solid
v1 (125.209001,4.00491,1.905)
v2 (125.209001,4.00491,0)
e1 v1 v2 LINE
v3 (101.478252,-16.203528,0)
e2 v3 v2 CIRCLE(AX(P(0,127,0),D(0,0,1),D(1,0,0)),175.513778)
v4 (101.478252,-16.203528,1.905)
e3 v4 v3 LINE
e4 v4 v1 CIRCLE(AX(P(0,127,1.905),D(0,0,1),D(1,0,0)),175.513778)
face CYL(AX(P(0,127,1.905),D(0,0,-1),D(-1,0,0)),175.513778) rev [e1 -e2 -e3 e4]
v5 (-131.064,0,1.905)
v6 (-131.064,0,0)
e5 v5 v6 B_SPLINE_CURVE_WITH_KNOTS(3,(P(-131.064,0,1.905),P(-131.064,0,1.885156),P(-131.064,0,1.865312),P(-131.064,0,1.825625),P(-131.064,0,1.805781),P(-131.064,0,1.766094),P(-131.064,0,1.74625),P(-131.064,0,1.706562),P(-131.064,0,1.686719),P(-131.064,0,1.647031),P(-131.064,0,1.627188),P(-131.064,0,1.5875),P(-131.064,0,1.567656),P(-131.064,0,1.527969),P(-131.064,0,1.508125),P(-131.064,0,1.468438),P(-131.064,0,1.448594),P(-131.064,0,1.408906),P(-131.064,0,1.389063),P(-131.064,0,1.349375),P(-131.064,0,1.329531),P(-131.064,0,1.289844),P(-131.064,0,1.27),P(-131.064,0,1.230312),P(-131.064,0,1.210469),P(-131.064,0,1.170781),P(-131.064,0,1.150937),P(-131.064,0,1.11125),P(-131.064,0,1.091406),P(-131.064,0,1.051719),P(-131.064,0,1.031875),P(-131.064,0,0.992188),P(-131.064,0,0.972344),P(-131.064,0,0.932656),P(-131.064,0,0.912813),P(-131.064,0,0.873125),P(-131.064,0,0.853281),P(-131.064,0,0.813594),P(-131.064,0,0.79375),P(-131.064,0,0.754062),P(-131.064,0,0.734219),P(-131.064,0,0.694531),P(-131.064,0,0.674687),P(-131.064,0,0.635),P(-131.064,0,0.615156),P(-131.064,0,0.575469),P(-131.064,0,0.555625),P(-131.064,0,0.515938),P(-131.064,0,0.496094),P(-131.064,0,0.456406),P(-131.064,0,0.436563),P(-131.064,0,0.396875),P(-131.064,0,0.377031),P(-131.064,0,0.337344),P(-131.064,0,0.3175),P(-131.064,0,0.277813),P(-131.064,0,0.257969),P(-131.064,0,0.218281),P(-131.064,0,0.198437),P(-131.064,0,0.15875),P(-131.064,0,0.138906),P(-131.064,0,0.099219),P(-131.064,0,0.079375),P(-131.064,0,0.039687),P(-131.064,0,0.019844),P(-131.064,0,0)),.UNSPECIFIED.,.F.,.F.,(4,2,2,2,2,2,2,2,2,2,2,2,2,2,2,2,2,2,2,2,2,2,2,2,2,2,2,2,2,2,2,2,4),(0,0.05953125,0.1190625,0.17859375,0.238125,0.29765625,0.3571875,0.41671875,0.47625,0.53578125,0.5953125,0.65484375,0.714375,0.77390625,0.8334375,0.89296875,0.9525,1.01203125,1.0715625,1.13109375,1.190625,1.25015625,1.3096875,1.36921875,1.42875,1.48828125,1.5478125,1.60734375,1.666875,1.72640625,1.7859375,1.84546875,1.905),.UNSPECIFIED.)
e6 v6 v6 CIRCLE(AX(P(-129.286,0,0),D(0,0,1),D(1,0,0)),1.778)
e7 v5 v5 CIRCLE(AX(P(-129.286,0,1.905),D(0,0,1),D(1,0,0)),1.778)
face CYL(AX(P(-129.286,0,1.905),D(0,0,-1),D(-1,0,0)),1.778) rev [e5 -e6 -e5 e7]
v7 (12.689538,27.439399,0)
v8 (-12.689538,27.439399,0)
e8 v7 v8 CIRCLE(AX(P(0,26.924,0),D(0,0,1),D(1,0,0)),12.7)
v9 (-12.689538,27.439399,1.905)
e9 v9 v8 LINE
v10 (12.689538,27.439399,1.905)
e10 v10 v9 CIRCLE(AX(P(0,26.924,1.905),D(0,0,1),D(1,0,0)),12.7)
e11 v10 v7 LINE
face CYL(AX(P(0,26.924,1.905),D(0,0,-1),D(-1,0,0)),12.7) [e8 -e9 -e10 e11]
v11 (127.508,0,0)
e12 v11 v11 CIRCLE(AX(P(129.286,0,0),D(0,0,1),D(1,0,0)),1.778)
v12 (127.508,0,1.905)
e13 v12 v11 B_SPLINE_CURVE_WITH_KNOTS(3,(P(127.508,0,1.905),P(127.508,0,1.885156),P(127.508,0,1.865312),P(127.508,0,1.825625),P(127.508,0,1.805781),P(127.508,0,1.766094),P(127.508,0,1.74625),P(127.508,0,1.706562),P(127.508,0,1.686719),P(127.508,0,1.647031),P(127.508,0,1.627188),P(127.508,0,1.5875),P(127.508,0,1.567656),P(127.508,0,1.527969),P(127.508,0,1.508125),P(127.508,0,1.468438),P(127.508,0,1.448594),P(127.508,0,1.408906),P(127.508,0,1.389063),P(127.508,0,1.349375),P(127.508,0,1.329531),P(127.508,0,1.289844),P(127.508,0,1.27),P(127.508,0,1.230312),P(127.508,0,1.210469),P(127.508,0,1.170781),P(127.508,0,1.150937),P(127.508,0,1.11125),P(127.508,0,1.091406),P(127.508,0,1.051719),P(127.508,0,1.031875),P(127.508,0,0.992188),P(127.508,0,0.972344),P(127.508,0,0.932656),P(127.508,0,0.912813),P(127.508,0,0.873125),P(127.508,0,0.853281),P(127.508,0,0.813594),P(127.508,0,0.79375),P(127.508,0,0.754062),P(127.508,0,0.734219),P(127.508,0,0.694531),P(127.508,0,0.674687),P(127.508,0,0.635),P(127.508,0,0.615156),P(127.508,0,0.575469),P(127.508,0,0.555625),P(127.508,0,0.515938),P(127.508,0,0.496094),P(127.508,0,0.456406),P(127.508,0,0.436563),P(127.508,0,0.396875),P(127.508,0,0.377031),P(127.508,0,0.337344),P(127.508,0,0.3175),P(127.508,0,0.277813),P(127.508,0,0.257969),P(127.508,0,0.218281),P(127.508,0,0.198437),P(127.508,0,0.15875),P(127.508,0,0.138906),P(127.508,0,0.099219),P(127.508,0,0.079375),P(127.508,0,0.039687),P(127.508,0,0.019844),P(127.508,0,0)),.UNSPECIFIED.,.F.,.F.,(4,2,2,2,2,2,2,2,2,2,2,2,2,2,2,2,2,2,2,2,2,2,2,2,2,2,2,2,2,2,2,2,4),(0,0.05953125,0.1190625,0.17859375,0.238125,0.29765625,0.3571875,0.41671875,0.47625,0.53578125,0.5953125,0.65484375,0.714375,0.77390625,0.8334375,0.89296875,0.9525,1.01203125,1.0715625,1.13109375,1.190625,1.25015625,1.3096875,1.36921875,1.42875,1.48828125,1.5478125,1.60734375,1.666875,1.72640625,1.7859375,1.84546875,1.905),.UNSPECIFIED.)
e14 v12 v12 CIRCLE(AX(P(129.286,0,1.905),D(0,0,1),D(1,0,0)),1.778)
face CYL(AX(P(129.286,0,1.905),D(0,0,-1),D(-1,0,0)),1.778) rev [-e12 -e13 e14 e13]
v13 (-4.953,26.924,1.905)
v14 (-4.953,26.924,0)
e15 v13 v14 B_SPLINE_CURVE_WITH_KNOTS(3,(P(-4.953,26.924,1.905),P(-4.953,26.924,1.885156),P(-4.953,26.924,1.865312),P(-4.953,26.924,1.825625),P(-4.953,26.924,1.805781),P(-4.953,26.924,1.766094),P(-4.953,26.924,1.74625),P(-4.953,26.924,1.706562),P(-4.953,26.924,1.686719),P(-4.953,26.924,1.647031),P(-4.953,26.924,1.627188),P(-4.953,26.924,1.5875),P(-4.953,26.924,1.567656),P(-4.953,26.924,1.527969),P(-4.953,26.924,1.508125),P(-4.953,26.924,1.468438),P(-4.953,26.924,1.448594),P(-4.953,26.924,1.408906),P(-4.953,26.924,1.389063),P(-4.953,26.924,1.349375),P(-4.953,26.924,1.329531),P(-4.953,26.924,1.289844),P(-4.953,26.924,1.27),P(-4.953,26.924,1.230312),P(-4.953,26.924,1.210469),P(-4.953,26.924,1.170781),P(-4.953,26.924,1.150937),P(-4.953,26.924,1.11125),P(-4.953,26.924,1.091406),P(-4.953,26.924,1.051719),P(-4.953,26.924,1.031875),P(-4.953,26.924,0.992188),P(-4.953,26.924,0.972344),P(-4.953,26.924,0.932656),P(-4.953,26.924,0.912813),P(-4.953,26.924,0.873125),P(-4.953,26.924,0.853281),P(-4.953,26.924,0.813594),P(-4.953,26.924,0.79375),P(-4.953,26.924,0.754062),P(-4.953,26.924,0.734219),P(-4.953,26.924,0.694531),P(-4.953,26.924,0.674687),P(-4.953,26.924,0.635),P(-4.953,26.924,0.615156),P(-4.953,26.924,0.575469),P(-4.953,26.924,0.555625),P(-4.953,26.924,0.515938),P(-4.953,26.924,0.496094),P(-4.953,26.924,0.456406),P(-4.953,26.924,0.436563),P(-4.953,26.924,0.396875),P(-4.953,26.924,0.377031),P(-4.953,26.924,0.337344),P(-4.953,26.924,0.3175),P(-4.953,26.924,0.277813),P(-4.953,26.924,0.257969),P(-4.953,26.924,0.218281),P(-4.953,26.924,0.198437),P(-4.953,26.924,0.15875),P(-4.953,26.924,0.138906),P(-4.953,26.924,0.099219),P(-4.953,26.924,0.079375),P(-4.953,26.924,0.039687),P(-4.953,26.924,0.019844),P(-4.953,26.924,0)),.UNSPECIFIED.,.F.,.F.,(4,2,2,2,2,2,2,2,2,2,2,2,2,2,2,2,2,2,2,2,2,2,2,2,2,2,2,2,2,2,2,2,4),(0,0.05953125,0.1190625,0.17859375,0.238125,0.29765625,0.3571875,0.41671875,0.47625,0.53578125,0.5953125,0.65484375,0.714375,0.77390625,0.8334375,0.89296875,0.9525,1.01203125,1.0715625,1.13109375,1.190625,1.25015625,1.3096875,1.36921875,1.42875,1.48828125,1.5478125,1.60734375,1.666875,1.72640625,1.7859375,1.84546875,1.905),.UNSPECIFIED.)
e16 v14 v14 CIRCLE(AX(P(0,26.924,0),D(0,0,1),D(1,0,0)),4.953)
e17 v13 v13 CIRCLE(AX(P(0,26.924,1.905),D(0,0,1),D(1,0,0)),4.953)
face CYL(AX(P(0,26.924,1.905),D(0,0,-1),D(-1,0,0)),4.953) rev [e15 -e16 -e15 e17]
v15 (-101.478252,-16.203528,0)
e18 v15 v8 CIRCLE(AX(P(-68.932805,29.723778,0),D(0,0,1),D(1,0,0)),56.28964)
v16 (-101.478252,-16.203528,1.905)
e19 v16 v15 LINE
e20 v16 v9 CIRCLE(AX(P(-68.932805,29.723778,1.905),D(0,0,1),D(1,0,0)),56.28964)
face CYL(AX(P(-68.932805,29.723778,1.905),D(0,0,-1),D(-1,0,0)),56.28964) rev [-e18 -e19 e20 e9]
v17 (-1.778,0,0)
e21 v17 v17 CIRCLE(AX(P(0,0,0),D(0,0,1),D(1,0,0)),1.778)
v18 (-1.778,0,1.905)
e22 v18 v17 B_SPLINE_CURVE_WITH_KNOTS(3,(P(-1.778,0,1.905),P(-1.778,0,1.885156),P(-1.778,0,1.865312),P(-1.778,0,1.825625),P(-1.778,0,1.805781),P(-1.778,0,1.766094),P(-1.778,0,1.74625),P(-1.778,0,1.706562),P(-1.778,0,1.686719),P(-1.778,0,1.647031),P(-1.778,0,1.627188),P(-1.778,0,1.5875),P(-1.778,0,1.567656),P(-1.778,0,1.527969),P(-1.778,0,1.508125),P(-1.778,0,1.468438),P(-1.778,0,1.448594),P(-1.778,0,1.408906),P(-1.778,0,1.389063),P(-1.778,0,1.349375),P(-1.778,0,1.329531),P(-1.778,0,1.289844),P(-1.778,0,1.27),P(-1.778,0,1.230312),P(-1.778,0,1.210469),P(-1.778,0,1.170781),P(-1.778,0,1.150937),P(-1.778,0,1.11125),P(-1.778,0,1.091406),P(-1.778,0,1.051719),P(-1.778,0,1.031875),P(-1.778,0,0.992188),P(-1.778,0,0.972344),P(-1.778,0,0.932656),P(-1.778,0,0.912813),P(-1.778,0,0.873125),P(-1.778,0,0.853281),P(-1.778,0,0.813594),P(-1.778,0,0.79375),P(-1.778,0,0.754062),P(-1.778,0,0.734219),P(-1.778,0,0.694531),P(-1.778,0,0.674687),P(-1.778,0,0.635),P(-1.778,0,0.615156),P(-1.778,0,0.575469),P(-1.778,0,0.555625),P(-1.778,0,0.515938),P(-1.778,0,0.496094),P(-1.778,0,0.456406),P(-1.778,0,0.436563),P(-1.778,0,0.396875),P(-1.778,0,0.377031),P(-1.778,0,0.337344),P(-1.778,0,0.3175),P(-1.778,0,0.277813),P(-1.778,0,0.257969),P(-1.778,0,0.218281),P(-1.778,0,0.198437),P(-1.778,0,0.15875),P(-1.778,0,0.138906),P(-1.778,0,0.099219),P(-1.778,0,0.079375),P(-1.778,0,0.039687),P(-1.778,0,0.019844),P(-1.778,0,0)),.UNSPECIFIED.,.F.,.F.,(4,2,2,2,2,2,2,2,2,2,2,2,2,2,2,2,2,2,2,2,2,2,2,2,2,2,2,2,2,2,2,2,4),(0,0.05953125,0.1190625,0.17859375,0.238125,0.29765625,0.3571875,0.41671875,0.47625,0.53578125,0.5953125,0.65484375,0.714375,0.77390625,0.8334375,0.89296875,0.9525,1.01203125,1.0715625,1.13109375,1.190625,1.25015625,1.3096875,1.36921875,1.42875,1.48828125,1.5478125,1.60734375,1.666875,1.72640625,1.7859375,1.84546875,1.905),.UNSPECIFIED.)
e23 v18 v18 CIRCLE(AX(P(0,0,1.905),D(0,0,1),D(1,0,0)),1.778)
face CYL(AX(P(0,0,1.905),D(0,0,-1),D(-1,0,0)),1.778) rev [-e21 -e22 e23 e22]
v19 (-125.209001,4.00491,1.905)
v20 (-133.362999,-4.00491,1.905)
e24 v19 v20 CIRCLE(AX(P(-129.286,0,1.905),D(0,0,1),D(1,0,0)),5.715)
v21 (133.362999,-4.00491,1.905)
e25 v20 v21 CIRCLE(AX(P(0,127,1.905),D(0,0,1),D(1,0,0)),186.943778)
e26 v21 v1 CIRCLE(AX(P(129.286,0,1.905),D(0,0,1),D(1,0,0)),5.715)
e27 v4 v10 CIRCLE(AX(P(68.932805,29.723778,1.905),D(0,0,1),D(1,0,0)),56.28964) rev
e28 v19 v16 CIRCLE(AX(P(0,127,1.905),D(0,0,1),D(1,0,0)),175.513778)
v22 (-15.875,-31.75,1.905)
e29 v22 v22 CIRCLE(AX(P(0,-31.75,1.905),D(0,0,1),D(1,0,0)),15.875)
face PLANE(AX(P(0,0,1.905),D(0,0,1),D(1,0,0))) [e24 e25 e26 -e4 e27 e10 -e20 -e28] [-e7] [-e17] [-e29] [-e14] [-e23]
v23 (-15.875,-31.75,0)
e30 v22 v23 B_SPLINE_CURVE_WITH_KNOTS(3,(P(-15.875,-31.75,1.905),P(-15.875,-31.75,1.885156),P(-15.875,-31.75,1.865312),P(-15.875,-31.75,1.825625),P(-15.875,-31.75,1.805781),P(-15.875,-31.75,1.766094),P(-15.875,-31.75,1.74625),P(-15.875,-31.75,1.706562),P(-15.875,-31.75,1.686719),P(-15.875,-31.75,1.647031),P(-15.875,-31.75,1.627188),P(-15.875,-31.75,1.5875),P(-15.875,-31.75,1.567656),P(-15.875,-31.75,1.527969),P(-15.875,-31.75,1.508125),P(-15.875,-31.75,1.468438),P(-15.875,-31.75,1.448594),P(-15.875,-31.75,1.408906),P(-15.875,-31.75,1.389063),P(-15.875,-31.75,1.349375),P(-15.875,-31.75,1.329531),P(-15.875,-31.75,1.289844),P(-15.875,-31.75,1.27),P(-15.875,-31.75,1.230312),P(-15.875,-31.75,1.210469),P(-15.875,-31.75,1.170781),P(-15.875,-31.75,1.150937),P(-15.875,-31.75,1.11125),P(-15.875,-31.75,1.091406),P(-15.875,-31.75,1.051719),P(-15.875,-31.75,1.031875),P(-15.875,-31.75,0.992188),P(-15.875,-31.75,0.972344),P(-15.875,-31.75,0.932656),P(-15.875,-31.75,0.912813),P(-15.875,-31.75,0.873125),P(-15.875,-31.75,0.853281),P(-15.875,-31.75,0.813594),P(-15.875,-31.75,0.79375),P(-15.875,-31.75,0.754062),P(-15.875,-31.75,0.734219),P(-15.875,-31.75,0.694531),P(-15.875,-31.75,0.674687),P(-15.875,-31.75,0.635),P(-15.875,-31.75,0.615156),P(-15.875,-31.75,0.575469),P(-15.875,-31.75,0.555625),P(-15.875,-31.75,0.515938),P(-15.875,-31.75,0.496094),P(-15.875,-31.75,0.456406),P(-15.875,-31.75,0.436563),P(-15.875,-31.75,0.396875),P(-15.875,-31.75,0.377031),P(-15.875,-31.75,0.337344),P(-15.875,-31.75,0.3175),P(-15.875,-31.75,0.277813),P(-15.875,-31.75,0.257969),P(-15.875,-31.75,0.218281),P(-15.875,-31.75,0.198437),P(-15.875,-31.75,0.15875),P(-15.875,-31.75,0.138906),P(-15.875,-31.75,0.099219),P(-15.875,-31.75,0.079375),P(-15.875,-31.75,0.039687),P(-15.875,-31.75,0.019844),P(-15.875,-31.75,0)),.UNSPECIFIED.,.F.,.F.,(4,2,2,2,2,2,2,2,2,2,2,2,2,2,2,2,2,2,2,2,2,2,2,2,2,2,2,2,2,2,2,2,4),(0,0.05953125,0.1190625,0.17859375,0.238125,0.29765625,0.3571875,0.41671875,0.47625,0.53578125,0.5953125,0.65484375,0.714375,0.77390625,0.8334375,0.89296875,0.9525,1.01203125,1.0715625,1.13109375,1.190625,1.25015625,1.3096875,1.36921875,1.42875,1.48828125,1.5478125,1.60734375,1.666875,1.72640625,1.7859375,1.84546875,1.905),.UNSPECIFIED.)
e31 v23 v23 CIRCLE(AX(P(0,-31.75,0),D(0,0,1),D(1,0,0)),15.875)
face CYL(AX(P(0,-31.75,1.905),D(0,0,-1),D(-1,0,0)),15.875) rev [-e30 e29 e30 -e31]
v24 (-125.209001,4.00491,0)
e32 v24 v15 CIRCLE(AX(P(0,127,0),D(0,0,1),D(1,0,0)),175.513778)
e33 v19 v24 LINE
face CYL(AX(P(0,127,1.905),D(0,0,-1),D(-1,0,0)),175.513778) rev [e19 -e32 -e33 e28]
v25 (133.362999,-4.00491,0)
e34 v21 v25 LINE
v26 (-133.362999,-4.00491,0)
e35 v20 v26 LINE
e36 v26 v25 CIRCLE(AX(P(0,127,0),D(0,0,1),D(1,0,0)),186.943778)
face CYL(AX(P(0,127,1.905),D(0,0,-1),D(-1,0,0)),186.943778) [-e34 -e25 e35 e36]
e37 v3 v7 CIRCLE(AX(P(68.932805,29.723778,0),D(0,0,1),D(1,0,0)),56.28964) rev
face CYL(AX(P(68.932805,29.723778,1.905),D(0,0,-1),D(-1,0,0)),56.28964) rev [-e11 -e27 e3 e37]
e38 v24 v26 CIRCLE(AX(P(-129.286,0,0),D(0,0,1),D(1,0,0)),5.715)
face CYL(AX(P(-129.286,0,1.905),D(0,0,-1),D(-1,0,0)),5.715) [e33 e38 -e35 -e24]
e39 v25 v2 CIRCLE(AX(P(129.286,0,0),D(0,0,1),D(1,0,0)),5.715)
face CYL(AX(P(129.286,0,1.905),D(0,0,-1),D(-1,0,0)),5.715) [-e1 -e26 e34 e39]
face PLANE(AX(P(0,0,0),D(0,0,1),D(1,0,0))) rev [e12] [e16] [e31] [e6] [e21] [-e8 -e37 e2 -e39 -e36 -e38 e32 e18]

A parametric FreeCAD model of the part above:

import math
import FreeCAD as App
import Part
import Sketcher
Q = App.Units.Quantity

doc = App.newDocument("Part")
body = doc.addObject("PartDesign::Body", "Body")

# Sketch on XY plane
sketch1 = body.newObject("Sketcher::SketchObject", "Sketch")
sketch1.AttachmentSupport = (doc.getObject("XY_Plane"), [""])
sketch1.MapMode = "FlatFace"
sketch1.addGeometry([
    Part.ArcOfCircle(Part.Circle(App.Vector(0, 127, 0), App.Vector(0, 0, 1), 186.9), math.radians(-136), math.radians(-44)),  # 0
    Part.ArcOfCircle(Part.Circle(App.Vector(129.3, 0, 0), App.Vector(0, 0, 1), 5.7), math.radians(-44), math.radians(136)),  # 1
    Part.ArcOfCircle(Part.Circle(App.Vector(0, 127, 0), App.Vector(0, 0, 1), 175.5), math.radians(-54.68), math.radians(-44.49)),  # 2
    Part.ArcOfCircle(Part.Circle(App.Vector(68.9, 29.7, 0), App.Vector(0, 0, 1), 56.3), math.radians(-178), math.radians(-55)),  # 3
    Part.ArcOfCircle(Part.Circle(App.Vector(0, 26.9, 0), App.Vector(0, 0, 1), 12.7), math.radians(2), math.radians(178)),  # 4
    Part.ArcOfCircle(Part.Circle(App.Vector(-68.9, 29.7, 0), App.Vector(0, 0, 1), 56.3), math.radians(-125), math.radians(-2)),  # 5
    Part.ArcOfCircle(Part.Circle(App.Vector(0, 127, 0), App.Vector(0, 0, 1), 175.5), math.radians(-135.51), math.radians(-125.32)),  # 6
    Part.ArcOfCircle(Part.Circle(App.Vector(-129.3, 0, 0), App.Vector(0, 0, 1), 5.7), math.radians(44), math.radians(224)),  # 7
    Part.Circle(App.Vector(0, -31.8, 0), App.Vector(0, 0, 1), 15.9),  # 8
    Part.Circle(App.Vector(-129.3, 0, 0), App.Vector(0, 0, 1), 1.8),  # 9
    Part.Circle(App.Vector(0, 0, 0), App.Vector(0, 0, 1), 1.8),  # 10
    Part.Circle(App.Vector(0, 26.9, 0), App.Vector(0, 0, 1), 5),  # 11
    Part.Circle(App.Vector(129.3, 0, 0), App.Vector(0, 0, 1), 1.8),  # 12
], False)
sketch1.addConstraint([
    Sketcher.Constraint("Tangent", 0, 2, 1, 1),
    Sketcher.Constraint("Tangent", 1, 2, 2, 2),
    Sketcher.Constraint("Tangent", 2, 1, 3, 2),
    Sketcher.Constraint("Tangent", 3, 1, 4, 1),
    Sketcher.Constraint("Tangent", 4, 2, 5, 2),
    Sketcher.Constraint("Tangent", 5, 1, 6, 2),
    Sketcher.Constraint("Tangent", 6, 1, 7, 1),
    Sketcher.Constraint("Tangent", 7, 2, 0, 1),
    Sketcher.Constraint("Coincident", 10, 3, -1, 1),
    Sketcher.Constraint("Coincident", 2, 3, 0, 3),
    Sketcher.Constraint("Coincident", 6, 3, 0, 3),
    Sketcher.Constraint("Coincident", 9, 3, 7, 3),
    Sketcher.Constraint("Coincident", 11, 3, 4, 3),
    Sketcher.Constraint("Coincident", 12, 3, 1, 3),
    Sketcher.Constraint("Equal", 3, 5),
    Sketcher.Constraint("Equal", 2, 6),
    Sketcher.Constraint("Equal", 9, 10),
    Sketcher.Constraint("Equal", 10, 12),
    Sketcher.Constraint("Symmetric", 1, 3, 7, 3, -1, 1),
    Sketcher.Constraint("Symmetric", 3, 3, 5, 3, -2),
    Sketcher.Constraint("PointOnObject", 8, 3, -2),
    Sketcher.Constraint("Radius", 4, Q("0.5 in")),
    Sketcher.Constraint("Diameter", 8, Q("1.25 in")),
    Sketcher.Constraint("Diameter", 9, Q("0.14 in")),
    Sketcher.Constraint("Diameter", 11, Q("0.39 in")),
    Sketcher.Constraint("DistanceY", -1, 1, 0, 3, Q("5 in")),
    Sketcher.Constraint("Radius", 1, Q("0.225 in")),
    Sketcher.Constraint("DistanceX", -1, 1, 1, 3, Q("5.09 in")),
    Sketcher.Constraint("DistanceY", -1, 1, 4, 3, Q("1.06 in")),
    Sketcher.Constraint("DistanceY", 8, 3, -1, 1, Q("1.25 in")),
    Sketcher.Constraint("Radius", 3, 56.28964),
])
pad1 = body.newObject("PartDesign::Pad", "Pad")
pad1.Profile = sketch1
pad1.Length = Q("0.075 in")

doc.recompute()
